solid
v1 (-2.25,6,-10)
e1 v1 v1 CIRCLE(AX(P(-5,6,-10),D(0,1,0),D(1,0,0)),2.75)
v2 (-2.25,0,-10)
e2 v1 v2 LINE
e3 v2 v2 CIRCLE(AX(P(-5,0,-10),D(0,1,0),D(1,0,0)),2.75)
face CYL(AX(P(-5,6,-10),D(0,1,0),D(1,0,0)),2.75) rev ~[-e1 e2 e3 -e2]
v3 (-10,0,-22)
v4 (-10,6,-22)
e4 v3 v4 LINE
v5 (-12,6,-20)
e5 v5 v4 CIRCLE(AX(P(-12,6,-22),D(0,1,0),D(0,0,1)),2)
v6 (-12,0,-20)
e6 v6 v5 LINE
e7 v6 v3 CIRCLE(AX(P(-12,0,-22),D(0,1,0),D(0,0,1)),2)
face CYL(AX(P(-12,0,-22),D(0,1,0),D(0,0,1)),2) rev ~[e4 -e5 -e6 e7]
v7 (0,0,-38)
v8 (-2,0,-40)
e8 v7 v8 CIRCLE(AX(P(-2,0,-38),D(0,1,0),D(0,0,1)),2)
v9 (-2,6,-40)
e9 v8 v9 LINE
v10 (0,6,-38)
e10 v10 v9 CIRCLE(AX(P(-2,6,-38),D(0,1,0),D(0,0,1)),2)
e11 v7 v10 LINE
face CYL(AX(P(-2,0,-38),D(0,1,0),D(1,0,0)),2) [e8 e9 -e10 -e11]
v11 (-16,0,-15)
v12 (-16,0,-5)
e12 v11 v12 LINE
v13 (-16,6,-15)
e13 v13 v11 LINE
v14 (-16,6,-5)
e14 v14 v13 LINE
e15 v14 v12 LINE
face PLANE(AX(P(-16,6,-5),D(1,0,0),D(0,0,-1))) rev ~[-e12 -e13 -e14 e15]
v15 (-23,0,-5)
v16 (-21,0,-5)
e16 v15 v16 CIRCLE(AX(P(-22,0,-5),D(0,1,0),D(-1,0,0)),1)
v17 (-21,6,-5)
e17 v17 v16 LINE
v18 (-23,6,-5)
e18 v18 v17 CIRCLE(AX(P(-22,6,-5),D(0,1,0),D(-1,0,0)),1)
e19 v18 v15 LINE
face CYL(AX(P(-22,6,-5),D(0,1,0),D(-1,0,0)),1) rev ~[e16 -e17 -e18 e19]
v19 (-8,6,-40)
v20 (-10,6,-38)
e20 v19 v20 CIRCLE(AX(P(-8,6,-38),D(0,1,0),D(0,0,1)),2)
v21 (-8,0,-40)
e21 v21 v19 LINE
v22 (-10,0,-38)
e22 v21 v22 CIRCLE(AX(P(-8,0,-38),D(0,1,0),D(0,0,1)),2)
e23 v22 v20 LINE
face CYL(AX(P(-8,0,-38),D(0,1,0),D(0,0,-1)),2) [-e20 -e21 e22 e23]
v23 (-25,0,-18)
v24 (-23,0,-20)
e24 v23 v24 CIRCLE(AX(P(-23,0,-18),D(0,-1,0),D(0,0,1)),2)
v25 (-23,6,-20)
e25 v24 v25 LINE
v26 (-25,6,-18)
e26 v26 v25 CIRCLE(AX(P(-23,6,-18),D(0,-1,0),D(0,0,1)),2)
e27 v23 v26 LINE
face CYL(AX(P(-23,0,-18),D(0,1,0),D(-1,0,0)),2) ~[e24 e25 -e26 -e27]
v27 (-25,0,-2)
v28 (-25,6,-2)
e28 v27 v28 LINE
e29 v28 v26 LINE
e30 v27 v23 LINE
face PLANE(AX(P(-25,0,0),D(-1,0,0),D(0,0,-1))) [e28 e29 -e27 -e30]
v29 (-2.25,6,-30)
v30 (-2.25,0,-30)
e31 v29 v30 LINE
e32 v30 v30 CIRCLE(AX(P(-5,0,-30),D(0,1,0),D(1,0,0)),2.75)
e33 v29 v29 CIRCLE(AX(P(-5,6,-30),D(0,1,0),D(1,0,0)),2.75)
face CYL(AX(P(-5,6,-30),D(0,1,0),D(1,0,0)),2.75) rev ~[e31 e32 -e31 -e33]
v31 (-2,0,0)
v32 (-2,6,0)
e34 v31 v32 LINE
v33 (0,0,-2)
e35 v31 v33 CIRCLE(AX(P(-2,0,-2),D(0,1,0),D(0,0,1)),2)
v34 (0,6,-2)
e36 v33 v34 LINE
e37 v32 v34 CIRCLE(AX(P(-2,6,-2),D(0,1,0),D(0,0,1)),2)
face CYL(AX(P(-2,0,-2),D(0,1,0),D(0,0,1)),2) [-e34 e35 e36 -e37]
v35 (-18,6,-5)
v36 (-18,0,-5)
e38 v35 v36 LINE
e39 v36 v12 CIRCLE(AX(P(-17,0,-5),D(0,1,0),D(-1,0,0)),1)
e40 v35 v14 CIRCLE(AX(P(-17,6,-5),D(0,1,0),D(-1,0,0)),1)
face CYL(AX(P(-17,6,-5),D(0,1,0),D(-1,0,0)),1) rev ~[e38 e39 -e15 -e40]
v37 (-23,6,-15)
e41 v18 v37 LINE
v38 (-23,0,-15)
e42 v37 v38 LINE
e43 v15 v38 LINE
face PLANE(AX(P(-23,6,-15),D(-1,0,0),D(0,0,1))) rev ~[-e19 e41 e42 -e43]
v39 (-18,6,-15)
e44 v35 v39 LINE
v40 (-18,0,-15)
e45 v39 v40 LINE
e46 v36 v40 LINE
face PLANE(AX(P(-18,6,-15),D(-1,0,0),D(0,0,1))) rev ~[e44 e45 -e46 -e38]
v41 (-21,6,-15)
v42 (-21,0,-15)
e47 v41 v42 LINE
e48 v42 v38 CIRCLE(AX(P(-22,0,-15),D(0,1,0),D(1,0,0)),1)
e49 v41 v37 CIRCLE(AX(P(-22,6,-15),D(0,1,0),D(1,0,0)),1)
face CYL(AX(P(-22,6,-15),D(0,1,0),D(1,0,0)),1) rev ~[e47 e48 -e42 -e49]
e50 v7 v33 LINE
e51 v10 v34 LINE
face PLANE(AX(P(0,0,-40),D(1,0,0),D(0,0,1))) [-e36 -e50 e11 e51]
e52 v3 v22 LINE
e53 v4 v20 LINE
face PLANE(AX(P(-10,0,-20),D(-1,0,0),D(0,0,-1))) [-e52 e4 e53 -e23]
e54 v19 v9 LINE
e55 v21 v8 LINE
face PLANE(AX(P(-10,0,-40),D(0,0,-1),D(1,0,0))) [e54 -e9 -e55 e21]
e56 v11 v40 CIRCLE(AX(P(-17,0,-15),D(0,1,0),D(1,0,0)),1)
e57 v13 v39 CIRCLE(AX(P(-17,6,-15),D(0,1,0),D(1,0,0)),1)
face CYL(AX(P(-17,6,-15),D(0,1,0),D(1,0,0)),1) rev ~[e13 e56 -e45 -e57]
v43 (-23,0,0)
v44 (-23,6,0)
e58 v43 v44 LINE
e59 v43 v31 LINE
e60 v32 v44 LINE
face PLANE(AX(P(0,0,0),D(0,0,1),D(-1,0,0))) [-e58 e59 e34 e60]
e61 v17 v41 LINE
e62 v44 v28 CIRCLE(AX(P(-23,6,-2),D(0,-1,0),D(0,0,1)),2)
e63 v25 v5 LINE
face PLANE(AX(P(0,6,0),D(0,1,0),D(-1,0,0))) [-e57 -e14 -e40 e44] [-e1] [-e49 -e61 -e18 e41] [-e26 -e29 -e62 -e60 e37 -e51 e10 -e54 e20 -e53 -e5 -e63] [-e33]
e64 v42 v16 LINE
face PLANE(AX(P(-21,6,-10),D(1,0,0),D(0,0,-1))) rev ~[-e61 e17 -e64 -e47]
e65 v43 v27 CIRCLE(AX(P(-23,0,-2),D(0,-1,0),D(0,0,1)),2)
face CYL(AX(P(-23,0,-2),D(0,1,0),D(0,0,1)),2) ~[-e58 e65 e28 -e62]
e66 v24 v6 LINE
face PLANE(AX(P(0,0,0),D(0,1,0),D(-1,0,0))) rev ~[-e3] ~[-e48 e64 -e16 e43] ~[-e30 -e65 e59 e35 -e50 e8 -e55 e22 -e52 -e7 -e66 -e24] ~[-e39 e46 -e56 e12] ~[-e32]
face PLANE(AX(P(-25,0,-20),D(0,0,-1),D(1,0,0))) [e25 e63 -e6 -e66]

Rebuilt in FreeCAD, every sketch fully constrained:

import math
import FreeCAD as App
import Part
import Sketcher
from FreeCAD import Vector


def edges_at(feature, points):
    """Names of the edges that pass closest to the given points."""
    edges = feature.Shape.Edges
    near = lambda p: min(range(len(edges)), key=lambda i: edges[i].distToShape(Part.Vertex(*p))[0])
    return sorted({f"Edge{near(p) + 1}" for p in points})


def add_polygon(sketch, points):
    """Adds a closed chain of lines whose ends are joined by coincident constraints."""
    first, n = sketch.GeometryCount, len(points)
    for a, b in zip(points, points[1:] + points[:1]):
        sketch.addGeometry(Part.LineSegment(App.Vector(*a, 0), App.Vector(*b, 0)), False)
    for i in range(n):
        sketch.addConstraint(Sketcher.Constraint("Coincident", first + i, 2, first + (i + 1) % n, 1))

doc = App.newDocument("Part")
body = doc.addObject("PartDesign::Body", "Body")

sketch1 = body.newObject("Sketcher::SketchObject", "Sketch")
sketch1.AttachmentSupport = (doc.getObject("XZ_Plane"), [""])
sketch1.MapMode = "FlatFace"
add_polygon(sketch1, [(0, 0), (0, -40), (-10, -40), (-10, -20), (-25, -20), (-25, 0)])
sketch1.addConstraint(Sketcher.Constraint("Vertical", 0))
sketch1.addConstraint(Sketcher.Constraint("Horizontal", 1))
sketch1.addConstraint(Sketcher.Constraint("Vertical", 2))
sketch1.addConstraint(Sketcher.Constraint("Horizontal", 3))
sketch1.addConstraint(Sketcher.Constraint("Vertical", 4))
sketch1.addConstraint(Sketcher.Constraint("Horizontal", 5))
sketch1.addConstraint(Sketcher.Constraint("Coincident", 5, 2, -1, 1))
sketch1.addConstraint(Sketcher.Constraint("Equal", 2, 4))
sketch1.addConstraint(Sketcher.Constraint("DistanceX", 1, 2, 1, 1, 10.0))
sketch1.addConstraint(Sketcher.Constraint("DistanceX", 3, 2, 3, 1, 15.0))
sketch1.addConstraint(Sketcher.Constraint("DistanceY", 0, 2, 0, 1, 40.0))
pad1 = body.newObject("PartDesign::Pad", "Pad")
pad1.Profile = sketch1
pad1.Length = 6
pad1.Reversed = True

sketch2 = body.newObject("Sketcher::SketchObject", "Sketch001")
sketch2.AttachmentSupport = (doc.getObject("XZ_Plane"), [""])
sketch2.MapMode = "FlatFace"
sketch2.AttachmentOffset = App.Placement(Vector(0, 0, -6), App.Rotation())
sketch2.addGeometry(Part.Circle(Vector(-5, -10, 0), Vector(0, 0, 1), 2.8), False)
sketch2.addGeometry(Part.Circle(Vector(-5, -30, 0), Vector(0, 0, 1), 2.8), False)
sketch2.addGeometry(Part.LineSegment(Vector(-23, -15, 0), Vector(-23, -5, 0)), False)
sketch2.addGeometry(Part.ArcOfCircle(Part.Circle(Vector(-22, -5, 0), Vector(0, 0, 1), 1), math.radians(0), math.radians(180)), False)
sketch2.addGeometry(Part.LineSegment(Vector(-21, -5, 0), Vector(-21, -15, 0)), False)
sketch2.addGeometry(Part.ArcOfCircle(Part.Circle(Vector(-22, -15, 0), Vector(0, 0, 1), 1), math.radians(180), math.radians(360)), False)
sketch2.addGeometry(Part.LineSegment(Vector(-18, -15, 0), Vector(-18, -5, 0)), False)
sketch2.addGeometry(Part.ArcOfCircle(Part.Circle(Vector(-17, -5, 0), Vector(0, 0, 1), 1), math.radians(0), math.radians(180)), False)
sketch2.addGeometry(Part.LineSegment(Vector(-16, -5, 0), Vector(-16, -15, 0)), False)
sketch2.addGeometry(Part.ArcOfCircle(Part.Circle(Vector(-17, -15, 0), Vector(0, 0, 1), 1), math.radians(180), math.radians(360)), False)
sketch2.addConstraint(Sketcher.Constraint("Tangent", 2, 2, 3, 2))
sketch2.addConstraint(Sketcher.Constraint("Tangent", 3, 1, 4, 1))
sketch2.addConstraint(Sketcher.Constraint("Tangent", 4, 2, 5, 2))
sketch2.addConstraint(Sketcher.Constraint("Tangent", 5, 1, 2, 1))
sketch2.addConstraint(Sketcher.Constraint("Tangent", 6, 2, 7, 2))
sketch2.addConstraint(Sketcher.Constraint("Tangent", 7, 1, 8, 1))
sketch2.addConstraint(Sketcher.Constraint("Tangent", 8, 2, 9, 2))
sketch2.addConstraint(Sketcher.Constraint("Tangent", 9, 1, 6, 1))
sketch2.addConstraint(Sketcher.Constraint("Vertical", 2))
sketch2.addConstraint(Sketcher.Constraint("Vertical", 4))
sketch2.addConstraint(Sketcher.Constraint("Vertical", 6))
sketch2.addConstraint(Sketcher.Constraint("Vertical", 8))
sketch2.addConstraint(Sketcher.Constraint("Equal", 0, 1))
sketch2.addConstraint(Sketcher.Constraint("Equal", 5, 7))
sketch2.addConstraint(Sketcher.Constraint("Horizontal", 3, 3, 7, 3))
sketch2.addConstraint(Sketcher.Constraint("Horizontal", 5, 3, 9, 3))
sketch2.addConstraint(Sketcher.Constraint("Vertical", 0, 3, 1, 3))
sketch2.addConstraint(Sketcher.Constraint("Radius", 3, 1.0))
sketch2.addConstraint(Sketcher.Constraint("Diameter", 0, 5.5))
sketch2.addConstraint(Sketcher.Constraint("DistanceY", 2, 1, 2, 2, 10.0))
sketch2.addConstraint(Sketcher.Constraint("DistanceX", 0, 3, -1, 1, 5.0))
sketch2.addConstraint(Sketcher.Constraint("DistanceY", 0, 3, -1, 1, 10.0))
sketch2.addConstraint(Sketcher.Constraint("DistanceY", 3, 3, -1, 1, 5.0))
sketch2.addConstraint(Sketcher.Constraint("DistanceY", 1, 3, 0, 3, 20.0))
sketch2.addConstraint(Sketcher.Constraint("DistanceX", 3, 3, 7, 3, 5.0))
sketch2.addConstraint(Sketcher.Constraint("DistanceX", 3, 3, -1, 1, 22.0))
pocket1 = body.newObject("PartDesign::Pocket", "Pocket")
pocket1.Profile = sketch2
pocket1.Type = "UpToFirst"
pocket1.Reversed = True
doc.recompute()

fillet = body.newObject("PartDesign::Fillet", "Fillet")
fillet.Base = (pocket1, edges_at(pocket1, [
    (0, 3, 0),
    (-25, 3, 0),
    (0, 3, -40),
    (-10, 3, -40),
    (-10, 3, -20),
    (-25, 3, -20),
]))
fillet.Radius = 2

doc.recompute()
